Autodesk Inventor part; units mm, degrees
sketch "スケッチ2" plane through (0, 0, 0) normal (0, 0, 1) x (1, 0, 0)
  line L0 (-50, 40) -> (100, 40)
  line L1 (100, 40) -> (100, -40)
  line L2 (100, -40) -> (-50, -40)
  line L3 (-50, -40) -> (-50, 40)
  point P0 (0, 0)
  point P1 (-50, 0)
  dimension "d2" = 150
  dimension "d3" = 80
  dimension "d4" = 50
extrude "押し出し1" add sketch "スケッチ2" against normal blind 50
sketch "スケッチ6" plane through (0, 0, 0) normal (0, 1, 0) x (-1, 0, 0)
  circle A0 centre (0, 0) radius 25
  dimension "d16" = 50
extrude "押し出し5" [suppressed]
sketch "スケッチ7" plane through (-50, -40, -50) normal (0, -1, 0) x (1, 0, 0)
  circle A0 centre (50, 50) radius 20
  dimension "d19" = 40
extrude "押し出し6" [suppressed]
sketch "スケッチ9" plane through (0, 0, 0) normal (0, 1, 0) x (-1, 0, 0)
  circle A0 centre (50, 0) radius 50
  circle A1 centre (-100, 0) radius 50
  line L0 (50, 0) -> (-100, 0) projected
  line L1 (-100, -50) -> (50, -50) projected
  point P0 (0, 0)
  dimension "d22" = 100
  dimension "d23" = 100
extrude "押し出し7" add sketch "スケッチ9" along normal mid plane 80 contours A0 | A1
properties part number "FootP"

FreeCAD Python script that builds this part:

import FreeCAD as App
import Part
import Sketcher
from FreeCAD import Vector
Q = App.Units.Quantity

doc = App.newDocument("Part")
body = doc.addObject("PartDesign::Body", "Body")

# Sketch on XY plane
sketch1 = doc.addObject("Sketcher::SketchObject", "Sketch")
body.addObject(sketch1)
sketch1.AttachmentSupport = (doc.XY_Plane, [""])
sketch1.MapMode = "FlatFace"
sketch1.addGeometry([
    Part.LineSegment(Vector(100, 40, 0), Vector(-50, 40, 0)),
    Part.LineSegment(Vector(-50, 40, 0), Vector(-50, -40, 0)),
    Part.LineSegment(Vector(-50, -40, 0), Vector(100, -40, 0)),
    Part.LineSegment(Vector(100, -40, 0), Vector(100, 40, 0)),
], False)
sketch1.addConstraint([
    Sketcher.Constraint("Coincident", 0, 2, 1, 1),
    Sketcher.Constraint("Coincident", 1, 2, 2, 1),
    Sketcher.Constraint("Coincident", 2, 2, 3, 1),
    Sketcher.Constraint("Coincident", 3, 2, 0, 1),
    Sketcher.Constraint("Horizontal", 0),
    Sketcher.Constraint("Vertical", 1),
    Sketcher.Constraint("Horizontal", 2),
    Sketcher.Constraint("Vertical", 3),
    Sketcher.Constraint("DistanceX", 0, 2, 0, 1, Q("5.9055 in")),
    Sketcher.Constraint("DistanceY", 1, 2, 1, 1, Q("3.1496 in")),
    Sketcher.Constraint("DistanceX", 0, 2, -1, 1, Q("1.9685 in")),
    Sketcher.Constraint("DistanceY", -1, 1, 0, 2, Q("1.5748 in")),
])
pad1 = doc.addObject("PartDesign::Pad", "Pad")
body.addObject(pad1)
pad1.Profile = sketch1
pad1.Length = Q("1.9685039 in")
pad1.Reversed = True

# Sketch on XZ plane
sketch2 = doc.addObject("Sketcher::SketchObject", "Sketch001")
body.addObject(sketch2)
sketch2.AttachmentSupport = (doc.XZ_Plane, [""])
sketch2.MapMode = "FlatFace"
sketch2.addGeometry([
    Part.Circle(Vector(-50, 0, 0), Vector(0, 0, 1), 50),
    Part.Circle(Vector(100, 0, 0), Vector(0, 0, 1), 50),
], False)
sketch2.addConstraint([
    Sketcher.Constraint("Equal", 0, 1),
    Sketcher.Constraint("PointOnObject", 0, 3, -1),
    Sketcher.Constraint("PointOnObject", 1, 3, -1),
    Sketcher.Constraint("Diameter", 0, Q("3.937 in")),
    Sketcher.Constraint("DistanceX", -1, 1, 1, 3, Q("3.937 in")),
    Sketcher.Constraint("DistanceX", 0, 3, -1, 1, Q("1.9685 in")),
])
pad2 = doc.addObject("PartDesign::Pad", "Pad001")
body.addObject(pad2)
pad2.Profile = sketch2
pad2.Length = Q("3.1496063 in")
pad2.Midplane = True

doc.recompute()
